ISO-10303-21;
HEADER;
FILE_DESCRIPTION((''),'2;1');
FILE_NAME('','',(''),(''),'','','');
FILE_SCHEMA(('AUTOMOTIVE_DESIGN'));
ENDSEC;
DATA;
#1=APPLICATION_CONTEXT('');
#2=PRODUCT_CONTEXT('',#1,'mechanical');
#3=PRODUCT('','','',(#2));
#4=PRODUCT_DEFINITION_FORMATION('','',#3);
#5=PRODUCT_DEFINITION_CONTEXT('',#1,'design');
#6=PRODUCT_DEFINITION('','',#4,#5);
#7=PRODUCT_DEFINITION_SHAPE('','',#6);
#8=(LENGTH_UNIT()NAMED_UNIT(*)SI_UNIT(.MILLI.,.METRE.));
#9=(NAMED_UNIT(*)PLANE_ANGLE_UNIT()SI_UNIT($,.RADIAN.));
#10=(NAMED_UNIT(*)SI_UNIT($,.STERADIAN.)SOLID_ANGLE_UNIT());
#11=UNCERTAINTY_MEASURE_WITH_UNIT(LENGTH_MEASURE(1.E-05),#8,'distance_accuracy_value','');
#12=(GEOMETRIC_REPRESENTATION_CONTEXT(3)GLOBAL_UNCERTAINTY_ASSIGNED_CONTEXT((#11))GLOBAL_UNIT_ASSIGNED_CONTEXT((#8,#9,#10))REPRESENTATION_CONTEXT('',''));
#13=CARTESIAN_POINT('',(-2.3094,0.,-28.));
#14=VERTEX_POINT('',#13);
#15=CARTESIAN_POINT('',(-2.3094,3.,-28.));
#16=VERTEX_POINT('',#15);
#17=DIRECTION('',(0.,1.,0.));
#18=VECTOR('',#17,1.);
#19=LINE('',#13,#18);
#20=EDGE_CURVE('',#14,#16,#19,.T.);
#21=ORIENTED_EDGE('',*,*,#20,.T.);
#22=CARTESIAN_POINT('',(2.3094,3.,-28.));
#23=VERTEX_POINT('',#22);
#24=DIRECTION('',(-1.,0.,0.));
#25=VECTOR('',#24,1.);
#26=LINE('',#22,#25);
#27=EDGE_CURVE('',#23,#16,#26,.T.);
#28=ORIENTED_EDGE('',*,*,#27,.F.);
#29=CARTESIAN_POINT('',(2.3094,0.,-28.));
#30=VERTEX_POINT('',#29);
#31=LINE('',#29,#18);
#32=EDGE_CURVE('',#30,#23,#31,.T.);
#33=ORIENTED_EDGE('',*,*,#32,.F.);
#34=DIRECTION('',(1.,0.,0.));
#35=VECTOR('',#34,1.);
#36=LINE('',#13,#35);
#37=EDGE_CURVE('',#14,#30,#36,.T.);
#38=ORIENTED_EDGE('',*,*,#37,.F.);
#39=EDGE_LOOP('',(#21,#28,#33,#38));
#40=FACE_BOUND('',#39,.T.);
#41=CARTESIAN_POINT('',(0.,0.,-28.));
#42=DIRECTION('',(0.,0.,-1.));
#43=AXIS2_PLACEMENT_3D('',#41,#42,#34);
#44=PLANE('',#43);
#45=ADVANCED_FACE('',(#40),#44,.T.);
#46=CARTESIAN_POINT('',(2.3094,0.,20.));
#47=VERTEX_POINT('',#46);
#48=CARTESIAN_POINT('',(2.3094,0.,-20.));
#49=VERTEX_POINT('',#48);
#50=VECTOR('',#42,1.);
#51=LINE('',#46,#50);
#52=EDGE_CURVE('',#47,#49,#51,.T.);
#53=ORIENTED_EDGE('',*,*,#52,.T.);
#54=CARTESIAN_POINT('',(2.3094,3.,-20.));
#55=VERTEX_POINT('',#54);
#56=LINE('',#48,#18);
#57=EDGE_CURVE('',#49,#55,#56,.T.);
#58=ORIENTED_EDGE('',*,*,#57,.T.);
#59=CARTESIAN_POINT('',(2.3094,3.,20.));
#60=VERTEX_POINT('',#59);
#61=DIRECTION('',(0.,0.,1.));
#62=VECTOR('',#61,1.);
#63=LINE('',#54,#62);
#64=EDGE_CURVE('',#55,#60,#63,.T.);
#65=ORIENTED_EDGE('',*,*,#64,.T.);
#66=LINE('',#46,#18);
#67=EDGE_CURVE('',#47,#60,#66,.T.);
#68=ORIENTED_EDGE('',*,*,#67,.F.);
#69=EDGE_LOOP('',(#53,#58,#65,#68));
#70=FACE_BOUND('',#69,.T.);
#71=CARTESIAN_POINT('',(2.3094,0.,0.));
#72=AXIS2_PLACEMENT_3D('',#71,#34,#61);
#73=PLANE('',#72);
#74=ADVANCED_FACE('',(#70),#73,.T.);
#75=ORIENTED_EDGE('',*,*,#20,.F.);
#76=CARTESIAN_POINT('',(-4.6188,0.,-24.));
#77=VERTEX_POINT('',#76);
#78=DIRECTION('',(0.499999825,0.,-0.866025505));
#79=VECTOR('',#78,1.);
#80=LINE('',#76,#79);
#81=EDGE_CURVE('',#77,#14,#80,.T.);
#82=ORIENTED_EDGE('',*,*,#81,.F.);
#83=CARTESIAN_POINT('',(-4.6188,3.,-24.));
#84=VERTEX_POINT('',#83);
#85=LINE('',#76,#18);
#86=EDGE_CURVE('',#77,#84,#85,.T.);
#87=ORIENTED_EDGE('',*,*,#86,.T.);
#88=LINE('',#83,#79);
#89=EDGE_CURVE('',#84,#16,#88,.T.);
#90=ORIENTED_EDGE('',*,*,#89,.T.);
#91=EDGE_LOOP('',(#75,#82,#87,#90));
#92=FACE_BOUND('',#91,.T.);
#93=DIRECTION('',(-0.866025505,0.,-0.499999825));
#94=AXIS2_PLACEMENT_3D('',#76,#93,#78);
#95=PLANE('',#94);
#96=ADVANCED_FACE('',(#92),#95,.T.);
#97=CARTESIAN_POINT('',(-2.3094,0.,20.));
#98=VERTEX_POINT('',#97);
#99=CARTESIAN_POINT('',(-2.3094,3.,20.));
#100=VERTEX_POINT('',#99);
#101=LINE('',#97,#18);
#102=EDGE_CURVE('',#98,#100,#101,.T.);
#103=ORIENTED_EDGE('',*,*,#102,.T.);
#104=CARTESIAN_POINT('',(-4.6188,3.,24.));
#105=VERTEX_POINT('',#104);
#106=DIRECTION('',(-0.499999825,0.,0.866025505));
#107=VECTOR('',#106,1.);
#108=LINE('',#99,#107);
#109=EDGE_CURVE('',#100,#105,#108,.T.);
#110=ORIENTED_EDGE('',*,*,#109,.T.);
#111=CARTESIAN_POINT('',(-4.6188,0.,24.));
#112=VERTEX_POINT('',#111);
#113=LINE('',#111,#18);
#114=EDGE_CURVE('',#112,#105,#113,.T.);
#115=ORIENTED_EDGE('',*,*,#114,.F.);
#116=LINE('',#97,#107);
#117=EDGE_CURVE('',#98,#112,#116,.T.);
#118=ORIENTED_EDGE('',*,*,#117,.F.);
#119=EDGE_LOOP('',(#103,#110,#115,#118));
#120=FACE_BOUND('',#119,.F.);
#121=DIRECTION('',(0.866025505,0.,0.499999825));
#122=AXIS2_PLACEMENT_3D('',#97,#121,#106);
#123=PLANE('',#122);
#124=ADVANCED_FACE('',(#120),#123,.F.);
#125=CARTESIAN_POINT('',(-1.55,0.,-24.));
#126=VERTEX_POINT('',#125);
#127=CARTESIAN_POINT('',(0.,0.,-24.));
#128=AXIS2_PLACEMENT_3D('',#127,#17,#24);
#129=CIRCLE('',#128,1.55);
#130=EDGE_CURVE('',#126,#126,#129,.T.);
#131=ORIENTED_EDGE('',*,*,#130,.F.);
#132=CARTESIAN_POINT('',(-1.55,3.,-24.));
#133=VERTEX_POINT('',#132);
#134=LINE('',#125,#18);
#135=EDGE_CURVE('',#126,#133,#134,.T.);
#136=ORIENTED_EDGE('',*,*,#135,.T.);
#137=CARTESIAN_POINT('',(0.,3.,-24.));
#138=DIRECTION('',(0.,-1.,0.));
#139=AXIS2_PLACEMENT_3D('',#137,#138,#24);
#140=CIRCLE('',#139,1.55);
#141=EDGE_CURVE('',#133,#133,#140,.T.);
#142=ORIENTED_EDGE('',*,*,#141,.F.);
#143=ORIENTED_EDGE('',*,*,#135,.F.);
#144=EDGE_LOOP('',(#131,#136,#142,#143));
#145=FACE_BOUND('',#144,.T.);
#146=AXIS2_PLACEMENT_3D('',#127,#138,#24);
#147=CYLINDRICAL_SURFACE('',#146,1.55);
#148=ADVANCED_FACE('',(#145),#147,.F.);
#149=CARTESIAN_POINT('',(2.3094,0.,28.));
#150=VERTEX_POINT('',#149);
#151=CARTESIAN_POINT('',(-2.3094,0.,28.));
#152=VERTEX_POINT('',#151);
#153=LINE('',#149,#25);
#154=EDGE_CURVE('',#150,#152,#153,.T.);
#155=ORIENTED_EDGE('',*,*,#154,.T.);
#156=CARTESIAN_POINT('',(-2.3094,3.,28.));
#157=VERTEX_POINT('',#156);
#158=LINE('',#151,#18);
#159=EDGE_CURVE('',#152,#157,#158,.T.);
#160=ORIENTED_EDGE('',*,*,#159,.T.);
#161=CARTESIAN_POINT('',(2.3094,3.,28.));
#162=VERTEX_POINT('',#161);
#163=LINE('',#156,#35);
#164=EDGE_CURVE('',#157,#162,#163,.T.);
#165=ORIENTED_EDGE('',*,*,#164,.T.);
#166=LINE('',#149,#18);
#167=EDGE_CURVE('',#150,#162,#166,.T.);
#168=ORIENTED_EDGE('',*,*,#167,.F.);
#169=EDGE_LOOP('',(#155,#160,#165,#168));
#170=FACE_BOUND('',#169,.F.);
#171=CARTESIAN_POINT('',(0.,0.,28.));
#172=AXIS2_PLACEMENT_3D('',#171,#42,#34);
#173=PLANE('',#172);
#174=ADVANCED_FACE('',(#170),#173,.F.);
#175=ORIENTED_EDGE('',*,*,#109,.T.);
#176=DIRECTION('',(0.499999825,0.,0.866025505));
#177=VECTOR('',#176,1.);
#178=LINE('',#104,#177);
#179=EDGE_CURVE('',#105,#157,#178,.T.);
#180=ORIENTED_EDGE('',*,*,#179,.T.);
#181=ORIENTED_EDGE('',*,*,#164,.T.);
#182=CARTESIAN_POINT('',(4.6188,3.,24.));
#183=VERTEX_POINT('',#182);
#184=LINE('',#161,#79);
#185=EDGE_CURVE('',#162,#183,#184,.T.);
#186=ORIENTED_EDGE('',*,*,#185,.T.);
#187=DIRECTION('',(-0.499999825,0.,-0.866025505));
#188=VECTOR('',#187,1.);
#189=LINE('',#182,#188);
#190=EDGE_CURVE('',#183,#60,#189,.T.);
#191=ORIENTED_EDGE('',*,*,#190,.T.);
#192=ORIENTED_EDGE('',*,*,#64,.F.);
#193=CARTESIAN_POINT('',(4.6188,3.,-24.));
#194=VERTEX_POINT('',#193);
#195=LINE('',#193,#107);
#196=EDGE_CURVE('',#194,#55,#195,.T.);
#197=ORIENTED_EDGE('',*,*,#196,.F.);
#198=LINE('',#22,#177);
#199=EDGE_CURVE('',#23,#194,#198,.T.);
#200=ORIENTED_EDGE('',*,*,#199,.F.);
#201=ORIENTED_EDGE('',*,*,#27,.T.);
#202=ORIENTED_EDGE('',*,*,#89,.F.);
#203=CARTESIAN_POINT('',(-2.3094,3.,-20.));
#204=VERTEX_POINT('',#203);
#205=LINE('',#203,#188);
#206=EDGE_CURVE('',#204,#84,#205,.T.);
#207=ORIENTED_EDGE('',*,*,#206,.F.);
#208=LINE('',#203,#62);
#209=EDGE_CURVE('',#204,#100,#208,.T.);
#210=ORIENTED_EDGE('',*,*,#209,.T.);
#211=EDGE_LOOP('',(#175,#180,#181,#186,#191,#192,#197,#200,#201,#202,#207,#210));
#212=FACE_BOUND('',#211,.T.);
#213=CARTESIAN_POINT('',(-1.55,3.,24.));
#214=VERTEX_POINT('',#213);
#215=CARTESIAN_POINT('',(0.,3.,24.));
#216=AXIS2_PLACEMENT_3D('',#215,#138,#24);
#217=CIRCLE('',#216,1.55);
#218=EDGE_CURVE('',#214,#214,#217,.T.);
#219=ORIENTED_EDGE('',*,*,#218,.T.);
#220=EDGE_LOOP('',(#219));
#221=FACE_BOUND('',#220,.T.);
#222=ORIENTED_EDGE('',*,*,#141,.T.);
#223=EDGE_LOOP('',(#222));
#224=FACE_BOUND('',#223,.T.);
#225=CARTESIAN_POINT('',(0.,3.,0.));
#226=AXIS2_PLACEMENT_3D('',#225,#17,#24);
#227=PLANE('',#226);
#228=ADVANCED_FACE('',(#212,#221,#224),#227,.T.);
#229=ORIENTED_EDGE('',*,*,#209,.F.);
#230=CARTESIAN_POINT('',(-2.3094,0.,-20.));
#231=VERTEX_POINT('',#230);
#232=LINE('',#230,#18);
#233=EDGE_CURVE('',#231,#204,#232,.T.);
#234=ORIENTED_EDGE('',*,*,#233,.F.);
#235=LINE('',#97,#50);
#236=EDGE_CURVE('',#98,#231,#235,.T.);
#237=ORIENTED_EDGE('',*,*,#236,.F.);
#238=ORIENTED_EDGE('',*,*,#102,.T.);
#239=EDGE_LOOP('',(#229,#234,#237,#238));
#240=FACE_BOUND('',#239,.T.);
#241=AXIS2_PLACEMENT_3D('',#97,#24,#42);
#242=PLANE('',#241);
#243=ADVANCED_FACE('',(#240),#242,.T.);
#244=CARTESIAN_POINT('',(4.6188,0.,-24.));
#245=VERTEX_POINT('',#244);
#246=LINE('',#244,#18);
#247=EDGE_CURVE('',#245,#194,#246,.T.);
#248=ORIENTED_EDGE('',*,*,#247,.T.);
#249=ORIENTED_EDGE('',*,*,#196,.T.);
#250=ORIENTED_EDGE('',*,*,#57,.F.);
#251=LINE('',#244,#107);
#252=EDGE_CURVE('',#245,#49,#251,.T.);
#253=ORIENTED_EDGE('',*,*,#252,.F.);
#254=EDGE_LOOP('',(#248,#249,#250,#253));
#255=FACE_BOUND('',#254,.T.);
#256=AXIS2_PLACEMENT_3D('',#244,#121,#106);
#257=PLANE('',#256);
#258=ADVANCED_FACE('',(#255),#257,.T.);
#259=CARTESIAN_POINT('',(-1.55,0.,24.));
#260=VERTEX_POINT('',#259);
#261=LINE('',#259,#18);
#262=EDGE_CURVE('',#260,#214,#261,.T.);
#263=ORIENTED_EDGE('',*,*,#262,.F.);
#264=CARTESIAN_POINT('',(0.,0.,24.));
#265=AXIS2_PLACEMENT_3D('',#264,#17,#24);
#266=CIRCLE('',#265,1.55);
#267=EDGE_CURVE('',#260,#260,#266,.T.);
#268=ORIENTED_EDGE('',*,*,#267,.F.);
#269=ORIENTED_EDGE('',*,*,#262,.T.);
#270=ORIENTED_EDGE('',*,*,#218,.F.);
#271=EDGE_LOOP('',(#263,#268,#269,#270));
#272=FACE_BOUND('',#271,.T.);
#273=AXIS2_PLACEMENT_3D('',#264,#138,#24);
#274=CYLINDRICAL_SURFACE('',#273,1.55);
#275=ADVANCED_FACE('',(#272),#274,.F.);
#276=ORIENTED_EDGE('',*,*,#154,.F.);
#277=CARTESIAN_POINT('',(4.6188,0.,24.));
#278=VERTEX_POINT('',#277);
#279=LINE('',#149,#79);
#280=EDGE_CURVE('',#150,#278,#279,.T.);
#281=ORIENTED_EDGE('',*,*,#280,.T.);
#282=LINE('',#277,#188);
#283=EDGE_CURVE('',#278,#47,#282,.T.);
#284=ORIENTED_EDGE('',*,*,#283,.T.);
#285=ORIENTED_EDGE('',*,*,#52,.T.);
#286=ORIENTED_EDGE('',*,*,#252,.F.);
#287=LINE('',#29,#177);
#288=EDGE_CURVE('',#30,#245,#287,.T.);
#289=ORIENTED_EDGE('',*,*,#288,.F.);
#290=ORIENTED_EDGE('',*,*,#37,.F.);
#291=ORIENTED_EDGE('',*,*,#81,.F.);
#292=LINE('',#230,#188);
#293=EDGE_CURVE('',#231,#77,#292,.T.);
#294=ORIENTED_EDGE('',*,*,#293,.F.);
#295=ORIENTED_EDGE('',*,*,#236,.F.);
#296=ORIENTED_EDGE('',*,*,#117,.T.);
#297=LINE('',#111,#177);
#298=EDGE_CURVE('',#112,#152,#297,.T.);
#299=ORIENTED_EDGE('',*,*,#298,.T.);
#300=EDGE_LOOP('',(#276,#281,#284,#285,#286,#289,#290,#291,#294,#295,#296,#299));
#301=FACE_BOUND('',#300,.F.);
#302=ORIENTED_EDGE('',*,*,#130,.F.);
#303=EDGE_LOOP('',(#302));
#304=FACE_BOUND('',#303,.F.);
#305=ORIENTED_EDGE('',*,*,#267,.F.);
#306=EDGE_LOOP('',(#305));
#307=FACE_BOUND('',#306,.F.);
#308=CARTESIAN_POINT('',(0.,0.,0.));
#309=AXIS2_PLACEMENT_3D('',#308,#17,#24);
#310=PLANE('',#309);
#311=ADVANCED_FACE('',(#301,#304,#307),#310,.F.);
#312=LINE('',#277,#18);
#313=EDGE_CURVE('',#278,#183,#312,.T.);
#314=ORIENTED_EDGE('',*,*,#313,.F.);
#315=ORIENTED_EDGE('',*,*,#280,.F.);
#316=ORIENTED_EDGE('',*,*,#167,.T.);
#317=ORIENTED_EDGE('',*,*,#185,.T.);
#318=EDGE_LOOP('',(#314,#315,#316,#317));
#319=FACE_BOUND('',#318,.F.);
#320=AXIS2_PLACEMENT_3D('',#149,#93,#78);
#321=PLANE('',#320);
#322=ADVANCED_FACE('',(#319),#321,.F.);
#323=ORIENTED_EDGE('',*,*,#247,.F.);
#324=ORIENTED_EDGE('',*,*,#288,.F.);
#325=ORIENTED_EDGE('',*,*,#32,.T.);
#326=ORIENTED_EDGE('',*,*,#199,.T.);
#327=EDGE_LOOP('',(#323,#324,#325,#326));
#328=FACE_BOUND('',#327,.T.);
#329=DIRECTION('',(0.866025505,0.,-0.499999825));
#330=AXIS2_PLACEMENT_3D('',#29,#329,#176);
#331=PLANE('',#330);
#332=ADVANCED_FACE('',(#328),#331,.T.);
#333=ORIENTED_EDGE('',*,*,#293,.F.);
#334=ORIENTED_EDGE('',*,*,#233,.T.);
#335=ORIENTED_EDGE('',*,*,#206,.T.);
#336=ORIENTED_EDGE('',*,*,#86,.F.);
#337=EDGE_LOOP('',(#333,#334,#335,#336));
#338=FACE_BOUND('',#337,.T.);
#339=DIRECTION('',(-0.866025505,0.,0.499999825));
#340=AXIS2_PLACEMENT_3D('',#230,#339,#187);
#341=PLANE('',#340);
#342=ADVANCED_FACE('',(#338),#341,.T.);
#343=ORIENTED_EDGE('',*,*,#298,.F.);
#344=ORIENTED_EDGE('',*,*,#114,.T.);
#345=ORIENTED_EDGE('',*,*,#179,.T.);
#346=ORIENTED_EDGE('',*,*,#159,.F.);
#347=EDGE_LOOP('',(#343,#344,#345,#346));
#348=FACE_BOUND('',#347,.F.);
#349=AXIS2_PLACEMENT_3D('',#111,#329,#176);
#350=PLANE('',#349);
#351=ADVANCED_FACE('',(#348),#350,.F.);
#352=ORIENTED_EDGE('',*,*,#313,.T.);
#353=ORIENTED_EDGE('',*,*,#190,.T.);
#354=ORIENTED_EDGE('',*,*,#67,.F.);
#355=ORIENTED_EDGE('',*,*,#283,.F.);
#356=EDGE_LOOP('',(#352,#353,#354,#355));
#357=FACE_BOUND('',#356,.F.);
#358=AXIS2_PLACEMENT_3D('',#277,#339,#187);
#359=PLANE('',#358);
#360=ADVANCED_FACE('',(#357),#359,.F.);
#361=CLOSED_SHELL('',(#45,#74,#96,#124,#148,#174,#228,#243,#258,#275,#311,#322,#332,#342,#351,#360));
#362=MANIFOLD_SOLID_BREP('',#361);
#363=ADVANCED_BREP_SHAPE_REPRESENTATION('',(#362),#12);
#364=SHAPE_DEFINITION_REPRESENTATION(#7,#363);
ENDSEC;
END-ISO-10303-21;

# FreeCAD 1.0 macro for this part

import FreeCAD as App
import Part
import Sketcher

V = App.Vector
Q = App.Units.Quantity

doc = App.newDocument("Part")
body = doc.addObject("PartDesign::Body", "Body")

sketch1 = body.newObject("Sketcher::SketchObject", "Sketch")
sketch1.AttachmentSupport = (doc.getObject("XZ_Plane"), [""])
sketch1.MapMode = "FlatFace"
sketch1.addGeometry([
    Part.LineSegment(V(4.6188, 24, 0), V(2.3094, 20, 0)),
    Part.LineSegment(V(2.3094, 20, 0), V(2.3094, -20, 0)),
    Part.LineSegment(V(2.3094, -20, 0), V(4.6188, -24, 0)),
    Part.LineSegment(V(4.6188, -24, 0), V(2.3094, -28, 0)),
    Part.LineSegment(V(2.3094, -28, 0), V(-2.3094, -28, 0)),
    Part.LineSegment(V(-2.3094, -28, 0), V(-4.6188, -24, 0)),
    Part.LineSegment(V(-4.6188, -24, 0), V(-2.3094, -20, 0)),
    Part.LineSegment(V(-2.3094, -20, 0), V(-2.3094, 20, 0)),
    Part.LineSegment(V(-2.3094, 20, 0), V(-4.6188, 24, 0)),
    Part.LineSegment(V(-4.6188, 24, 0), V(-2.3094, 28, 0)),
    Part.LineSegment(V(-2.3094, 28, 0), V(2.3094, 28, 0)),
    Part.LineSegment(V(2.3094, 28, 0), V(4.6188, 24, 0)),
    Part.Circle(V(0, 24, 0), V(0, 0, 1), 1.55),
    Part.Circle(V(0, -24, 0), V(0, 0, 1), 1.55),
], False)
sketch1.addConstraint([
    Sketcher.Constraint("Coincident", 0, 2, 1, 1),
    Sketcher.Constraint("Coincident", 1, 2, 2, 1),
    Sketcher.Constraint("Coincident", 2, 2, 3, 1),
    Sketcher.Constraint("Coincident", 3, 2, 4, 1),
    Sketcher.Constraint("Coincident", 4, 2, 5, 1),
    Sketcher.Constraint("Coincident", 5, 2, 6, 1),
    Sketcher.Constraint("Coincident", 6, 2, 7, 1),
    Sketcher.Constraint("Coincident", 7, 2, 8, 1),
    Sketcher.Constraint("Coincident", 8, 2, 9, 1),
    Sketcher.Constraint("Coincident", 9, 2, 10, 1),
    Sketcher.Constraint("Coincident", 10, 2, 11, 1),
    Sketcher.Constraint("Coincident", 11, 2, 0, 1),
    Sketcher.Constraint("Vertical", 1),
    Sketcher.Constraint("Horizontal", 4),
    Sketcher.Constraint("Vertical", 7),
    Sketcher.Constraint("Horizontal", 10),
    Sketcher.Constraint("Equal", 12, 13),
    Sketcher.Constraint("Symmetric", 12, 3, 13, 3, -1, 1),
    Sketcher.Constraint("Symmetric", 0, 2, 6, 2, -1, 1),
    Sketcher.Constraint("Symmetric", 2, 2, 8, 2, -1, 1),
    Sketcher.Constraint("Symmetric", 3, 2, 9, 2, -1, 1),
    Sketcher.Constraint("Symmetric", 5, 2, 11, 2, -1, 1),
    Sketcher.Constraint("Symmetric", 2, 2, 5, 2, -2),
    Sketcher.Constraint("PointOnObject", 12, 3, -2),
    Sketcher.Constraint("Parallel", 0, 3),
    Sketcher.Constraint("Parallel", 2, 5),
    Sketcher.Constraint("Parallel", 5, 8),
    Sketcher.Constraint("Parallel", 8, 11),
    Sketcher.Constraint("Horizontal", 13, 3, 2, 2),
    Sketcher.Constraint("Horizontal", 1, 2, 6, 2),
    Sketcher.Constraint("Vertical", 1, 2, 3, 2),
    Sketcher.Constraint("Diameter", 12, 3.1),
    Sketcher.Constraint("DistanceY", 1, 2, 1, 1, 40.0),
    Sketcher.Constraint("DistanceY", 3, 2, 1, 2, 8.0),
    Sketcher.Constraint("Angle", 0, Q("-120 deg")),
    Sketcher.Constraint("DistanceX", 4, 2, 4, 1, 4.6188),
])
pad1 = body.newObject("PartDesign::Pad", "Pad")
pad1.Profile = sketch1
pad1.Length = 3
pad1.Reversed = True

doc.recompute()
